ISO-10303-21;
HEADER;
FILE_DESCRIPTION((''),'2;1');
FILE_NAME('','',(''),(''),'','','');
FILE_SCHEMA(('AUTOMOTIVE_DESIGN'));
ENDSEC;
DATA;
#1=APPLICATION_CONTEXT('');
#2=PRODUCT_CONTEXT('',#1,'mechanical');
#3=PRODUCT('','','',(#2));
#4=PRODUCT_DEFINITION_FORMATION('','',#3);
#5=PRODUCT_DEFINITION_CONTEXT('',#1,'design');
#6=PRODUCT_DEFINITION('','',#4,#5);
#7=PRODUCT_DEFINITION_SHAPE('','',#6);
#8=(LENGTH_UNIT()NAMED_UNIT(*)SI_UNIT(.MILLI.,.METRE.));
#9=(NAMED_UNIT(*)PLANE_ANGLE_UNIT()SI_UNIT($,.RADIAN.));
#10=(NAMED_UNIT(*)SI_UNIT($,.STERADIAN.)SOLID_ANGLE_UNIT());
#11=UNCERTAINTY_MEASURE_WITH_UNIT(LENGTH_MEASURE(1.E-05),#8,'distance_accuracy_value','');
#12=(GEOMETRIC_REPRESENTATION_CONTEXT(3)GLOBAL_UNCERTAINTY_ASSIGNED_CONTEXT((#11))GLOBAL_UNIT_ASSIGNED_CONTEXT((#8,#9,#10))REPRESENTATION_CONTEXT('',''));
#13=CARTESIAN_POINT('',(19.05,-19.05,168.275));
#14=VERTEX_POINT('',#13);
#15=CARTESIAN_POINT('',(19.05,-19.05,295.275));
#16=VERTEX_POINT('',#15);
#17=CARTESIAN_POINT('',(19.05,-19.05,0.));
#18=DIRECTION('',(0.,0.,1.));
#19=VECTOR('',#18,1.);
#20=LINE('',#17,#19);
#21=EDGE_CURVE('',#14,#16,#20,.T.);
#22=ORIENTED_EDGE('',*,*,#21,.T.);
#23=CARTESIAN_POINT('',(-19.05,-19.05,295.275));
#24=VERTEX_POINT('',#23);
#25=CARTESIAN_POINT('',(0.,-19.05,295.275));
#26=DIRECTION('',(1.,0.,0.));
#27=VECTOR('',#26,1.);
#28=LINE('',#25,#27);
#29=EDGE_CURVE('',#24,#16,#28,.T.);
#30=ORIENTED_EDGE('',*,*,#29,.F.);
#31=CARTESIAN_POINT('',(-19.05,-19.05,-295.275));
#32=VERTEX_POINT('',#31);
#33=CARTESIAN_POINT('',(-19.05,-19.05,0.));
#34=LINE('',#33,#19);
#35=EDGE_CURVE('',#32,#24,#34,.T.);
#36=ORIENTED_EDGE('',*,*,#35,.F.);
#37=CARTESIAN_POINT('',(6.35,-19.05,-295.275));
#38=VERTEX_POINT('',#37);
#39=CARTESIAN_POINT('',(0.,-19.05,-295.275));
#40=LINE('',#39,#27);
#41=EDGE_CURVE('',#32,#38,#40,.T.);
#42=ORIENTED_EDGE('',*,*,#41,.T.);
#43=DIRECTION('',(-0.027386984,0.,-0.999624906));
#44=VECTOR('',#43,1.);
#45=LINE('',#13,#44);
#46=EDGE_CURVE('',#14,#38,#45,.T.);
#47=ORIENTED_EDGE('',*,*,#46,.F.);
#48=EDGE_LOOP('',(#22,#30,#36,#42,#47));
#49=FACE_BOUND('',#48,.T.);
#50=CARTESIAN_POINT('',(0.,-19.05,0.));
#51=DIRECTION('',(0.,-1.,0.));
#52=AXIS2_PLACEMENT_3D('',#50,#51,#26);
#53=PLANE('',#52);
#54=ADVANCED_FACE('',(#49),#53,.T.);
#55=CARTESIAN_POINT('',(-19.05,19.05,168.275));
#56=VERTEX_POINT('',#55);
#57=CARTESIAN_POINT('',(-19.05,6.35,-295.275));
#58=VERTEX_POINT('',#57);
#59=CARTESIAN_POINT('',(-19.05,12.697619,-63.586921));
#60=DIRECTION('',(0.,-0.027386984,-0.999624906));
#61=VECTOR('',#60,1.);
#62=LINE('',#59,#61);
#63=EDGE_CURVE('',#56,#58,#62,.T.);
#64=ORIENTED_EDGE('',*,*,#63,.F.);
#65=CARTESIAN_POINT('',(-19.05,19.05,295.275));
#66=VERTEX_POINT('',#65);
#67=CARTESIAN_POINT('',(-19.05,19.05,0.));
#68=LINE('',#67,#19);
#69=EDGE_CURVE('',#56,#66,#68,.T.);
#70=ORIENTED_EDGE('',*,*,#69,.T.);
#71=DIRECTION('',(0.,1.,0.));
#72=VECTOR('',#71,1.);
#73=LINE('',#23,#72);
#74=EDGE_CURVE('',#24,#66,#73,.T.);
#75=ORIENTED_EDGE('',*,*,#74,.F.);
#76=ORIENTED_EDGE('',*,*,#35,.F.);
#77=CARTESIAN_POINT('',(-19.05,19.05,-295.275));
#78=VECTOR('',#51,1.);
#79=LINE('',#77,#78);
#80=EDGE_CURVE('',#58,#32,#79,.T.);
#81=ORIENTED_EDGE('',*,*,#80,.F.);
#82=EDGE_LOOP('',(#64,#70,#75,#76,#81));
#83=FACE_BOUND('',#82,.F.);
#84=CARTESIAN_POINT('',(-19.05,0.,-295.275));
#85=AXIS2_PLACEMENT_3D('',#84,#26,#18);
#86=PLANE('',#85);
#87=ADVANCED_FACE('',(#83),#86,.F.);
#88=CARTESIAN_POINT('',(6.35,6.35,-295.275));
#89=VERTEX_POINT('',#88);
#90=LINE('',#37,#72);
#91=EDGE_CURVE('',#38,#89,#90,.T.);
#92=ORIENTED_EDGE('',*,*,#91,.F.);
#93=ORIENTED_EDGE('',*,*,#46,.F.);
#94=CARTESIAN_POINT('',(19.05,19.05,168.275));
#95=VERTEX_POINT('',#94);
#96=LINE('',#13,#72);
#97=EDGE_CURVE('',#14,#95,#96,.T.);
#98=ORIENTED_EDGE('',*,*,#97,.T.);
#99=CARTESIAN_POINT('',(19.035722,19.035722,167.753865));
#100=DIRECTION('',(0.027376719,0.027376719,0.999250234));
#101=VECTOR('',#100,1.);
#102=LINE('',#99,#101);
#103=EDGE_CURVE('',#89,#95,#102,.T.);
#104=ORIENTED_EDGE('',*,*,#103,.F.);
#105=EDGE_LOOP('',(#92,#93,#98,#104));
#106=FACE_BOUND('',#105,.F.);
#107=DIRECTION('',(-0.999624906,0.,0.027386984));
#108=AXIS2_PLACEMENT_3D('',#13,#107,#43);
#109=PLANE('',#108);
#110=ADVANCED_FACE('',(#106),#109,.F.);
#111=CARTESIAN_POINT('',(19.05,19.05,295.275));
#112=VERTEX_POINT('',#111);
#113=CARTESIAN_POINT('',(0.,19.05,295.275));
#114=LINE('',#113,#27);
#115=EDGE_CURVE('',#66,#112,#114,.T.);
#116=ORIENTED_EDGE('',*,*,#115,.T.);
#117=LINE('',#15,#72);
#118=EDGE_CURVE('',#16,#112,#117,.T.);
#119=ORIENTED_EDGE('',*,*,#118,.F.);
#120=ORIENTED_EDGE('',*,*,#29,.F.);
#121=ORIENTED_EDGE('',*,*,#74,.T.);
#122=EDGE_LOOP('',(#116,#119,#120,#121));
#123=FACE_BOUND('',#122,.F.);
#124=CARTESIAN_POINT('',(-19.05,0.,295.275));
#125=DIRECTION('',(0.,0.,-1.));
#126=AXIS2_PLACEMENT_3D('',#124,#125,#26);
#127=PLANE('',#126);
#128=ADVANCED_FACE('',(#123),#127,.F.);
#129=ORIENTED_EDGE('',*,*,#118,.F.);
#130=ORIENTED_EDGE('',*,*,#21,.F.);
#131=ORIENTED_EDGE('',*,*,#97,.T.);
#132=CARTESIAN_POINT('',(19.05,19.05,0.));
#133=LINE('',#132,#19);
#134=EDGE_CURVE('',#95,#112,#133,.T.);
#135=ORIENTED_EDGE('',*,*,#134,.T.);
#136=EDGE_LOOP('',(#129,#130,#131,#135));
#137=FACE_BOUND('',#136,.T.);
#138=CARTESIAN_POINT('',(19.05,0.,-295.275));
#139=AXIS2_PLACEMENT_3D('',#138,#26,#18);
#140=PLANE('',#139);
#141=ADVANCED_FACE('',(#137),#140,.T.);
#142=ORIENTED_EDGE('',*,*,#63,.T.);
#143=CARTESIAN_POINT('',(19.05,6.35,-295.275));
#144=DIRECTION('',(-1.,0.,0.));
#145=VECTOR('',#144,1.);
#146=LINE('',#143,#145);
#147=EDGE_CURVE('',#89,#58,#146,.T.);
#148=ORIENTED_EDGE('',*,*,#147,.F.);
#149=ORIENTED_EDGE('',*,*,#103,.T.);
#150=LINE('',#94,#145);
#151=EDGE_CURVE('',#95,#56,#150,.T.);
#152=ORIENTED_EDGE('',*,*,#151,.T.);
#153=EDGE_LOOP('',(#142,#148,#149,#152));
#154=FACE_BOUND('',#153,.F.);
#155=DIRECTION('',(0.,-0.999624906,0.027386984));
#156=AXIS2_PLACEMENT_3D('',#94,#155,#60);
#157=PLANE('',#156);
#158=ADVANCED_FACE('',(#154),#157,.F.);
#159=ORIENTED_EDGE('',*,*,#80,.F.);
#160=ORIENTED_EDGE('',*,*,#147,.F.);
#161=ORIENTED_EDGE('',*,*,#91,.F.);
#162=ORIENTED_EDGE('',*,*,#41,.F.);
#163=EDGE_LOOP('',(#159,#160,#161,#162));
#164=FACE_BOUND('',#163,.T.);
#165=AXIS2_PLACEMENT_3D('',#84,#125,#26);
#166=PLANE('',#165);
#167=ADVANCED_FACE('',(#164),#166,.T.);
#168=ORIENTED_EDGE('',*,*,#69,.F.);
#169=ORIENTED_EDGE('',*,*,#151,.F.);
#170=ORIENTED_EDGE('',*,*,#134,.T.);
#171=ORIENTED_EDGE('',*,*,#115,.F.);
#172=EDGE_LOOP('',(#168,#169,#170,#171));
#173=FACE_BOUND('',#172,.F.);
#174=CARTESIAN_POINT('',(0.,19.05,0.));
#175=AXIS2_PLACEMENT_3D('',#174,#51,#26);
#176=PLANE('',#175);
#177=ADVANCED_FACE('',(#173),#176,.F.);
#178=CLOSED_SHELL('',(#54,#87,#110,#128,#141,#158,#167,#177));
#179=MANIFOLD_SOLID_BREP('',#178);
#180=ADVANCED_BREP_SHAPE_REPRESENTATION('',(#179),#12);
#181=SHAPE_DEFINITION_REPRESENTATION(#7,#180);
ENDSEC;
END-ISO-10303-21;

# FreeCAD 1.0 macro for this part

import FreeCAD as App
import Part
import Sketcher
Q = App.Units.Quantity


def add_polygon(sketch, points):
    """Adds a closed chain of lines whose ends are joined by coincident constraints."""
    first, n = sketch.GeometryCount, len(points)
    for a, b in zip(points, points[1:] + points[:1]):
        sketch.addGeometry(Part.LineSegment(App.Vector(*a, 0), App.Vector(*b, 0)), False)
    for i in range(n):
        sketch.addConstraint(Sketcher.Constraint("Coincident", first + i, 2, first + (i + 1) % n, 1))

doc = App.newDocument("Part")
body = doc.addObject("PartDesign::Body", "Body")

sketch1 = body.newObject("Sketcher::SketchObject", "Sketch")
sketch1.AttachmentSupport = (doc.getObject("XZ_Plane"), [""])
sketch1.MapMode = "FlatFace"
add_polygon(sketch1, [(-19, 295), (-19, -295), (19, -295), (19, 295)])
sketch1.addConstraint(Sketcher.Constraint("Vertical", 0))
sketch1.addConstraint(Sketcher.Constraint("Horizontal", 1))
sketch1.addConstraint(Sketcher.Constraint("Vertical", 2))
sketch1.addConstraint(Sketcher.Constraint("Horizontal", 3))
sketch1.addConstraint(Sketcher.Constraint("Symmetric", 0, 2, 2, 2, -1, 1))
sketch1.addConstraint(Sketcher.Constraint("DistanceX", 1, 1, 1, 2, Q("1.5 in")))
sketch1.addConstraint(Sketcher.Constraint("DistanceY", 0, 2, 0, 1, Q("23.25 in")))
pad1 = body.newObject("PartDesign::Pad", "Pad")
pad1.Profile = sketch1
pad1.Length = Q("1.5 in")
pad1.Midplane = True

sketch2 = body.newObject("Sketcher::SketchObject", "Sketch001")
sketch2.AttachmentSupport = (doc.getObject("XZ_Plane"), [""])
sketch2.MapMode = "FlatFace"
sketch2.AttachmentOffset = App.Placement(App.Vector(0, 0, 0.75 * 25.4), App.Rotation())
add_polygon(sketch2, [(19, 168), (6, -295), (19, -295)])
sketch2.addConstraint(Sketcher.Constraint("Horizontal", 1))
sketch2.addConstraint(Sketcher.Constraint("Vertical", 2))
sketch2.addConstraint(Sketcher.Constraint("DistanceX", 1, 1, 1, 2, Q("0.5 in")))
sketch2.addConstraint(Sketcher.Constraint("DistanceY", 2, 1, 2, 2, Q("18.25 in")))
sketch2.addConstraint(Sketcher.Constraint("DistanceX", -1, 1, 0, 2, Q("0.25 in")))
sketch2.addConstraint(Sketcher.Constraint("DistanceY", 0, 2, -1, 1, Q("11.625 in")))
pocket1 = body.newObject("PartDesign::Pocket", "Pocket")
pocket1.Profile = sketch2
pocket1.Type = "ThroughAll"

sketch3 = body.newObject("Sketcher::SketchObject", "Sketch002")
sketch3.AttachmentSupport = (doc.getObject("YZ_Plane"), [""])
sketch3.MapMode = "FlatFace"
sketch3.AttachmentOffset = App.Placement(App.Vector(0, 0, 0.75 * 25.4), App.Rotation())
add_polygon(sketch3, [(19, -295), (19, 168), (6, -295)])
sketch3.addConstraint(Sketcher.Constraint("Vertical", 0))
sketch3.addConstraint(Sketcher.Constraint("Horizontal", 2))
sketch3.addConstraint(Sketcher.Constraint("DistanceX", 2, 1, 2, 2, Q("0.5 in")))
sketch3.addConstraint(Sketcher.Constraint("DistanceY", 0, 1, 0, 2, Q("18.25 in")))
sketch3.addConstraint(Sketcher.Constraint("DistanceX", -1, 1, 0, 2, Q("0.75 in")))
sketch3.addConstraint(Sketcher.Constraint("DistanceY", -1, 1, 0, 2, Q("6.625 in")))
pocket2 = body.newObject("PartDesign::Pocket", "Pocket001")
pocket2.Profile = sketch3
pocket2.Type = "ThroughAll"

doc.recompute()
